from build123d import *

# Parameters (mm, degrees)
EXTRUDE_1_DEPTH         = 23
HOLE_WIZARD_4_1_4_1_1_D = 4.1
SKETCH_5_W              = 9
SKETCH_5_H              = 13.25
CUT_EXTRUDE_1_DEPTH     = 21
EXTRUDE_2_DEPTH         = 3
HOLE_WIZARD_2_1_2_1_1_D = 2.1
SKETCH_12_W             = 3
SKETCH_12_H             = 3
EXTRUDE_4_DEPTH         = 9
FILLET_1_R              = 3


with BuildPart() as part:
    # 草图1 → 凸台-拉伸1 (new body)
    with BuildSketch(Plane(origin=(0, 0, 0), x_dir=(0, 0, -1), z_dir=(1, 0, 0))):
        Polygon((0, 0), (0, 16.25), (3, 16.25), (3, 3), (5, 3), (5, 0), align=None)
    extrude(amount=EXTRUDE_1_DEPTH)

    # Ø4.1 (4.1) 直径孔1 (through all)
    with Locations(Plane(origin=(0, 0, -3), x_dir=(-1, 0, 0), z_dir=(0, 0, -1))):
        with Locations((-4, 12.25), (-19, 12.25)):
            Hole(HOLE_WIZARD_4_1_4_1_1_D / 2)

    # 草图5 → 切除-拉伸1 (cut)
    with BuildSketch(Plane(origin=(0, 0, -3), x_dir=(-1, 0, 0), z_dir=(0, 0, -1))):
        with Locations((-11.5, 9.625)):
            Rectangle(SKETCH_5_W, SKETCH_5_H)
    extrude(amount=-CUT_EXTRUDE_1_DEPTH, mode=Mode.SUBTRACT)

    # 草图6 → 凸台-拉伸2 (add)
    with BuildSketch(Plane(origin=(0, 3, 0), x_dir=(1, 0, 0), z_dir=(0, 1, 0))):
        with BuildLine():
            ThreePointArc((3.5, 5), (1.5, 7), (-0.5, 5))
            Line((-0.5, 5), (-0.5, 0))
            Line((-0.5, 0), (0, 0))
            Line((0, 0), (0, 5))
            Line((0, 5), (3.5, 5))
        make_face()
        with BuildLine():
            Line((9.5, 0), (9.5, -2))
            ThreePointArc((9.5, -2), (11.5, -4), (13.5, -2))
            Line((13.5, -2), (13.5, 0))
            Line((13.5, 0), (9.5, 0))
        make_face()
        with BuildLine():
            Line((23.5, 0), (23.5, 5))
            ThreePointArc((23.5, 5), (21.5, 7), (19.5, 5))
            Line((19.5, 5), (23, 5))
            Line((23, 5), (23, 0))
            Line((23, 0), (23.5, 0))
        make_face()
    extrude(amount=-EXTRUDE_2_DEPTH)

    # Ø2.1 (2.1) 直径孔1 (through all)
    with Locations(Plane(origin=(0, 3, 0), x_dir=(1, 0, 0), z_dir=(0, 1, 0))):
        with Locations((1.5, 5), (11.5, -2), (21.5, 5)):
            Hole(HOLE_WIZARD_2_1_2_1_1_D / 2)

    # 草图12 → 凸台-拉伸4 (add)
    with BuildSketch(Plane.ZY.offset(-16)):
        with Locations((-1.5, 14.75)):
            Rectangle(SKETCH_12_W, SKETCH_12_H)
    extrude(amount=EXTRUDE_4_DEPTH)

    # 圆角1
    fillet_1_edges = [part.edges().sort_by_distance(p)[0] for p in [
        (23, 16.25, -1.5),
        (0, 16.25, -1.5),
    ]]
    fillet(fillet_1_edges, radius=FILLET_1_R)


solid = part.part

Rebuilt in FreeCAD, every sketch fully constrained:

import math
import FreeCAD as App
import Part
import Sketcher
Q = App.Units.Quantity


def edges_at(feature, points):
    """Names of the edges that pass closest to the given points."""
    edges = feature.Shape.Edges
    near = lambda p: min(range(len(edges)), key=lambda i: edges[i].distToShape(Part.Vertex(*p))[0])
    return sorted({f"Edge{near(p) + 1}" for p in points})


def add_polygon(sketch, points):
    """Adds a closed chain of lines whose ends are joined by coincident constraints."""
    first, n = sketch.GeometryCount, len(points)
    for a, b in zip(points, points[1:] + points[:1]):
        sketch.addGeometry(Part.LineSegment(App.Vector(*a, 0), App.Vector(*b, 0)), False)
    for i in range(n):
        sketch.addConstraint(Sketcher.Constraint("Coincident", first + i, 2, first + (i + 1) % n, 1))

doc = App.newDocument("Part")
params = doc.addObject("Spreadsheet::Sheet", "Params")
for row, (alias, value) in enumerate([
    ("sketch1_width", "3 mm"),
    ("sketch1_height", "5 mm"),
    ("sketch1_width2", "16.25 mm"),
    ("pad1_length", "23 mm"),
    ("sketch2_diameter", "4.1 mm"),
    ("hole_diameter", "4.1 mm"),
    ("sketch3_width", "9 mm"),
    ("sketch3_height", "13.25 mm"),
    ("pocket1_length", "21 mm"),
    ("sketch4_radius", "2 mm"),
    ("sketch4_height", "5 mm"),
    ("sketch4_height2", "2 mm"),
    ("sketch4_width", "0.5 mm"),
    ("pad2_length", "3 mm"),
    ("sketch5_diameter", "2.1 mm"),
    ("hole2_diameter", "2.1 mm"),
    ("sketch6_width", "3 mm"),
    ("pad3_length", "9 mm"),
    ("fillet_radius", "3 mm"),
], start=1):
    params.set(f"A{row}", alias)
    params.set(f"B{row}", "=" + value)
    params.setAlias(f"B{row}", alias)

body = doc.addObject("PartDesign::Body", "Body")

sketch1 = doc.addObject("Sketcher::SketchObject", "Sketch")
body.addObject(sketch1)
sketch1.AttachmentSupport = (doc.YZ_Plane, [""])
sketch1.MapMode = "FlatFace"
add_polygon(sketch1, [(16.25, 0), (0, 0), (0, -5), (3, -5), (3, -3), (16.25, -3)])
sketch1.addConstraint(Sketcher.Constraint("Horizontal", 0))
sketch1.addConstraint(Sketcher.Constraint("Vertical", 1))
sketch1.addConstraint(Sketcher.Constraint("Horizontal", 2))
sketch1.addConstraint(Sketcher.Constraint("Vertical", 3))
sketch1.addConstraint(Sketcher.Constraint("Horizontal", 4))
sketch1.addConstraint(Sketcher.Constraint("Vertical", 5))
sketch1.addConstraint(Sketcher.Constraint("Coincident", 0, 2, -1, 1))
sketch1.addConstraint(Sketcher.Constraint("Equal", 2, 5))
sketch1.addConstraint(Sketcher.Constraint("DistanceX", 2, 1, 2, 2, Q("3 mm")))
sketch1.addConstraint(Sketcher.Constraint("DistanceY", 1, 2, 1, 1, Q("5 mm")))
sketch1.addConstraint(Sketcher.Constraint("DistanceX", 0, 2, 0, 1, Q("16.25 mm")))
sketch1.setExpression("Constraints[14]", "Params.sketch1_width")
sketch1.setExpression("Constraints[15]", "Params.sketch1_height")
sketch1.setExpression("Constraints[16]", "Params.sketch1_width2")
pad1 = doc.addObject("PartDesign::Pad", "Pad")
body.addObject(pad1)
pad1.Profile = sketch1
pad1.setExpression("Length", "Params.pad1_length")

sketch2 = doc.addObject("Sketcher::SketchObject", "Sketch001")
body.addObject(sketch2)
sketch2.AttachmentSupport = (doc.XY_Plane, [""])
sketch2.MapMode = "FlatFace"
sketch2.AttachmentOffset = App.Placement(App.Vector(0, 0, -3), App.Rotation())
sketch2.addGeometry(Part.Circle(App.Vector(4, 12.25, 0), App.Vector(0, 0, 1), 2.05), False)
sketch2.addGeometry(Part.Circle(App.Vector(19, 12.25, 0), App.Vector(0, 0, 1), 2.05), False)
sketch2.addConstraint(Sketcher.Constraint("Equal", 0, 1))
sketch2.addConstraint(Sketcher.Constraint("Horizontal", 0, 3, 1, 3))
sketch2.addConstraint(Sketcher.Constraint("Diameter", 0, Q("4.1 mm")))
sketch2.addConstraint(Sketcher.Constraint("DistanceX", -1, 1, 0, 3, Q("4 mm")))
sketch2.addConstraint(Sketcher.Constraint("DistanceX", -1, 1, 1, 3, Q("19 mm")))
sketch2.addConstraint(Sketcher.Constraint("DistanceY", -1, 1, 0, 3, Q("12.25 mm")))
sketch2.setExpression("Constraints[2]", "Params.sketch2_diameter")
doc.recompute()
hole = doc.addObject("PartDesign::Hole", "Hole")
body.addObject(hole)
hole.Profile = sketch2
hole.ThreadType = "None"
hole.setExpression("Diameter", "Params.hole_diameter")
hole.DepthType = "ThroughAll"
hole.Reversed = True

sketch3 = doc.addObject("Sketcher::SketchObject", "Sketch002")
body.addObject(sketch3)
sketch3.AttachmentSupport = (doc.XY_Plane, [""])
sketch3.MapMode = "FlatFace"
sketch3.AttachmentOffset = App.Placement(App.Vector(0, 0, -3), App.Rotation())
add_polygon(sketch3, [(16, 16.25), (16, 3), (7, 3), (7, 16.25)])
sketch3.addConstraint(Sketcher.Constraint("Vertical", 0))
sketch3.addConstraint(Sketcher.Constraint("Horizontal", 1))
sketch3.addConstraint(Sketcher.Constraint("Vertical", 2))
sketch3.addConstraint(Sketcher.Constraint("Horizontal", 3))
sketch3.addConstraint(Sketcher.Constraint("DistanceX", 1, 2, 1, 1, Q("9 mm")))
sketch3.addConstraint(Sketcher.Constraint("DistanceX", -1, 1, 0, 2, Q("16 mm")))
sketch3.addConstraint(Sketcher.Constraint("DistanceY", -1, 1, 0, 2, Q("3 mm")))
sketch3.addConstraint(Sketcher.Constraint("DistanceY", 0, 2, 0, 1, Q("13.25 mm")))
sketch3.setExpression("Constraints[8]", "Params.sketch3_width")
sketch3.setExpression("Constraints[11]", "Params.sketch3_height")
pocket1 = doc.addObject("PartDesign::Pocket", "Pocket")
body.addObject(pocket1)
pocket1.Profile = sketch3
pocket1.setExpression("Length", "Params.pocket1_length")
pocket1.Reversed = True

sketch4 = doc.addObject("Sketcher::SketchObject", "Sketch003")
body.addObject(sketch4)
sketch4.AttachmentSupport = (doc.XZ_Plane, [""])
sketch4.MapMode = "FlatFace"
sketch4.AttachmentOffset = App.Placement(App.Vector(0, 0, -3), App.Rotation())
sketch4.addGeometry(Part.ArcOfCircle(Part.Circle(App.Vector(1.5, -5, 0), App.Vector(0, 0, 1), 2), math.radians(180), math.radians(360)), False)
sketch4.addGeometry(Part.LineSegment(App.Vector(-0.5, -5, 0), App.Vector(-0.5, 0, 0)), False)
sketch4.addGeometry(Part.LineSegment(App.Vector(-0.5, 0, 0), App.Vector(0, 0, 0)), False)
sketch4.addGeometry(Part.LineSegment(App.Vector(0, 0, 0), App.Vector(0, -5, 0)), False)
sketch4.addGeometry(Part.LineSegment(App.Vector(0, -5, 0), App.Vector(3.5, -5, 0)), False)
sketch4.addGeometry(Part.LineSegment(App.Vector(9.5, 0, 0), App.Vector(9.5, 2, 0)), False)
sketch4.addGeometry(Part.ArcOfCircle(Part.Circle(App.Vector(11.5, 2, 0), App.Vector(0, 0, 1), 2), math.radians(0), math.radians(180)), False)
sketch4.addGeometry(Part.LineSegment(App.Vector(13.5, 2, 0), App.Vector(13.5, 0, 0)), False)
sketch4.addGeometry(Part.LineSegment(App.Vector(13.5, 0, 0), App.Vector(9.5, 0, 0)), False)
sketch4.addGeometry(Part.LineSegment(App.Vector(23.5, 0, 0), App.Vector(23.5, -5, 0)), False)
sketch4.addGeometry(Part.ArcOfCircle(Part.Circle(App.Vector(21.5, -5, 0), App.Vector(0, 0, 1), 2), math.radians(180), math.radians(360)), False)
sketch4.addGeometry(Part.LineSegment(App.Vector(19.5, -5, 0), App.Vector(23, -5, 0)), False)
sketch4.addGeometry(Part.LineSegment(App.Vector(23, -5, 0), App.Vector(23, 0, 0)), False)
sketch4.addGeometry(Part.LineSegment(App.Vector(23, 0, 0), App.Vector(23.5, 0, 0)), False)
sketch4.addConstraint(Sketcher.Constraint("Tangent", 0, 1, 1, 1))
sketch4.addConstraint(Sketcher.Constraint("Coincident", 1, 2, 2, 1))
sketch4.addConstraint(Sketcher.Constraint("Coincident", 2, 2, 3, 1))
sketch4.addConstraint(Sketcher.Constraint("Coincident", 3, 2, 4, 1))
sketch4.addConstraint(Sketcher.Constraint("Coincident", 4, 2, 0, 2))
sketch4.addConstraint(Sketcher.Constraint("Tangent", 5, 2, 6, 2))
sketch4.addConstraint(Sketcher.Constraint("Tangent", 6, 1, 7, 1))
sketch4.addConstraint(Sketcher.Constraint("Coincident", 7, 2, 8, 1))
sketch4.addConstraint(Sketcher.Constraint("Coincident", 8, 2, 5, 1))
sketch4.addConstraint(Sketcher.Constraint("Tangent", 9, 2, 10, 2))
sketch4.addConstraint(Sketcher.Constraint("Coincident", 10, 1, 11, 1))
sketch4.addConstraint(Sketcher.Constraint("Coincident", 11, 2, 12, 1))
sketch4.addConstraint(Sketcher.Constraint("Coincident", 12, 2, 13, 1))
sketch4.addConstraint(Sketcher.Constraint("Coincident", 13, 2, 9, 1))
sketch4.addConstraint(Sketcher.Constraint("Vertical", 1))
sketch4.addConstraint(Sketcher.Constraint("Horizontal", 2))
sketch4.addConstraint(Sketcher.Constraint("Vertical", 3))
sketch4.addConstraint(Sketcher.Constraint("Horizontal", 4))
sketch4.addConstraint(Sketcher.Constraint("Vertical", 5))
sketch4.addConstraint(Sketcher.Constraint("Vertical", 7))
sketch4.addConstraint(Sketcher.Constraint("Horizontal", 8))
sketch4.addConstraint(Sketcher.Constraint("Vertical", 9))
sketch4.addConstraint(Sketcher.Constraint("Horizontal", 11))
sketch4.addConstraint(Sketcher.Constraint("Vertical", 12))
sketch4.addConstraint(Sketcher.Constraint("Horizontal", 13))
sketch4.addConstraint(Sketcher.Constraint("Coincident", 2, 2, -1, 1))
sketch4.addConstraint(Sketcher.Constraint("Equal", 0, 6))
sketch4.addConstraint(Sketcher.Constraint("Equal", 6, 10))
sketch4.addConstraint(Sketcher.Constraint("PointOnObject", 7, 2, -1))
sketch4.addConstraint(Sketcher.Constraint("PointOnObject", 12, 2, -1))
sketch4.addConstraint(Sketcher.Constraint("Horizontal", 0, 3, 10, 3))
sketch4.addConstraint(Sketcher.Constraint("Horizontal", 0, 1, 3, 2))
sketch4.addConstraint(Sketcher.Constraint("Horizontal", 9, 2, 10, 1))
sketch4.addConstraint(Sketcher.Constraint("Equal", 4, 11))
sketch4.addConstraint(Sketcher.Constraint("Radius", 0, Q("2 mm")))
sketch4.addConstraint(Sketcher.Constraint("DistanceY", 1, 1, 1, 2, Q("5 mm")))
sketch4.addConstraint(Sketcher.Constraint("DistanceY", 5, 1, 5, 2, Q("2 mm")))
sketch4.addConstraint(Sketcher.Constraint("DistanceX", 2, 1, 2, 2, Q("0.5 mm")))
sketch4.addConstraint(Sketcher.Constraint("DistanceX", -1, 1, 11, 2, Q("23 mm")))
sketch4.addConstraint(Sketcher.Constraint("DistanceX", 0, 3, 6, 3, Q("10 mm")))
sketch4.setExpression("Constraints[34]", "Params.sketch4_radius")
sketch4.setExpression("Constraints[35]", "Params.sketch4_height")
sketch4.setExpression("Constraints[36]", "Params.sketch4_height2")
sketch4.setExpression("Constraints[37]", "Params.sketch4_width")
pad2 = doc.addObject("PartDesign::Pad", "Pad001")
body.addObject(pad2)
pad2.Profile = sketch4
pad2.setExpression("Length", "Params.pad2_length")

sketch5 = doc.addObject("Sketcher::SketchObject", "Sketch004")
body.addObject(sketch5)
sketch5.AttachmentSupport = (doc.XZ_Plane, [""])
sketch5.MapMode = "FlatFace"
sketch5.AttachmentOffset = App.Placement(App.Vector(0, 0, -3), App.Rotation())
sketch5.addGeometry(Part.Circle(App.Vector(1.5, -5, 0), App.Vector(0, 0, 1), 1.05), False)
sketch5.addGeometry(Part.Circle(App.Vector(11.5, 2, 0), App.Vector(0, 0, 1), 1.05), False)
sketch5.addGeometry(Part.Circle(App.Vector(21.5, -5, 0), App.Vector(0, 0, 1), 1.05), False)
sketch5.addConstraint(Sketcher.Constraint("Equal", 0, 1))
sketch5.addConstraint(Sketcher.Constraint("Equal", 1, 2))
sketch5.addConstraint(Sketcher.Constraint("Horizontal", 0, 3, 2, 3))
sketch5.addConstraint(Sketcher.Constraint("Diameter", 0, Q("2.1 mm")))
sketch5.addConstraint(Sketcher.Constraint("DistanceY", 0, 3, -1, 1, Q("5 mm")))
sketch5.addConstraint(Sketcher.Constraint("DistanceY", -1, 1, 1, 3, Q("2 mm")))
sketch5.addConstraint(Sketcher.Constraint("DistanceX", 0, 3, 1, 3, Q("10 mm")))
sketch5.addConstraint(Sketcher.Constraint("DistanceX", 1, 3, 2, 3, Q("10 mm")))
sketch5.addConstraint(Sketcher.Constraint("DistanceX", -1, 1, 0, 3, Q("1.5 mm")))
sketch5.setExpression("Constraints[3]", "Params.sketch5_diameter")
doc.recompute()
hole2 = doc.addObject("PartDesign::Hole", "Hole001")
body.addObject(hole2)
hole2.Profile = sketch5
hole2.ThreadType = "None"
hole2.setExpression("Diameter", "Params.hole2_diameter")
hole2.DepthType = "ThroughAll"
hole2.Reversed = True

sketch6 = doc.addObject("Sketcher::SketchObject", "Sketch005")
body.addObject(sketch6)
sketch6.AttachmentSupport = (doc.YZ_Plane, [""])
sketch6.MapMode = "FlatFace"
sketch6.AttachmentOffset = App.Placement(App.Vector(0, 0, 16), App.Rotation())
add_polygon(sketch6, [(16.25, -3), (13.25, -3), (13.25, 0), (16.25, 0)])
sketch6.addConstraint(Sketcher.Constraint("Horizontal", 0))
sketch6.addConstraint(Sketcher.Constraint("Vertical", 1))
sketch6.addConstraint(Sketcher.Constraint("Horizontal", 2))
sketch6.addConstraint(Sketcher.Constraint("Vertical", 3))
sketch6.addConstraint(Sketcher.Constraint("PointOnObject", 1, 2, -1))
sketch6.addConstraint(Sketcher.Constraint("Equal", 2, 1))
sketch6.addConstraint(Sketcher.Constraint("DistanceX", 0, 2, 0, 1, Q("3 mm")))
sketch6.addConstraint(Sketcher.Constraint("DistanceX", -1, 1, 0, 2, Q("13.25 mm")))
sketch6.setExpression("Constraints[10]", "Params.sketch6_width")
pad3 = doc.addObject("PartDesign::Pad", "Pad002")
body.addObject(pad3)
pad3.Profile = sketch6
pad3.setExpression("Length", "Params.pad3_length")
pad3.Reversed = True
doc.recompute()

fillet = doc.addObject("PartDesign::Fillet", "Fillet")
body.addObject(fillet)
fillet.Base = (pad3, edges_at(pad3, [(23, 16.25, -1.5), (0, 16.25, -1.5)]))
fillet.setExpression("Radius", "Params.fillet_radius")

doc.recompute()
